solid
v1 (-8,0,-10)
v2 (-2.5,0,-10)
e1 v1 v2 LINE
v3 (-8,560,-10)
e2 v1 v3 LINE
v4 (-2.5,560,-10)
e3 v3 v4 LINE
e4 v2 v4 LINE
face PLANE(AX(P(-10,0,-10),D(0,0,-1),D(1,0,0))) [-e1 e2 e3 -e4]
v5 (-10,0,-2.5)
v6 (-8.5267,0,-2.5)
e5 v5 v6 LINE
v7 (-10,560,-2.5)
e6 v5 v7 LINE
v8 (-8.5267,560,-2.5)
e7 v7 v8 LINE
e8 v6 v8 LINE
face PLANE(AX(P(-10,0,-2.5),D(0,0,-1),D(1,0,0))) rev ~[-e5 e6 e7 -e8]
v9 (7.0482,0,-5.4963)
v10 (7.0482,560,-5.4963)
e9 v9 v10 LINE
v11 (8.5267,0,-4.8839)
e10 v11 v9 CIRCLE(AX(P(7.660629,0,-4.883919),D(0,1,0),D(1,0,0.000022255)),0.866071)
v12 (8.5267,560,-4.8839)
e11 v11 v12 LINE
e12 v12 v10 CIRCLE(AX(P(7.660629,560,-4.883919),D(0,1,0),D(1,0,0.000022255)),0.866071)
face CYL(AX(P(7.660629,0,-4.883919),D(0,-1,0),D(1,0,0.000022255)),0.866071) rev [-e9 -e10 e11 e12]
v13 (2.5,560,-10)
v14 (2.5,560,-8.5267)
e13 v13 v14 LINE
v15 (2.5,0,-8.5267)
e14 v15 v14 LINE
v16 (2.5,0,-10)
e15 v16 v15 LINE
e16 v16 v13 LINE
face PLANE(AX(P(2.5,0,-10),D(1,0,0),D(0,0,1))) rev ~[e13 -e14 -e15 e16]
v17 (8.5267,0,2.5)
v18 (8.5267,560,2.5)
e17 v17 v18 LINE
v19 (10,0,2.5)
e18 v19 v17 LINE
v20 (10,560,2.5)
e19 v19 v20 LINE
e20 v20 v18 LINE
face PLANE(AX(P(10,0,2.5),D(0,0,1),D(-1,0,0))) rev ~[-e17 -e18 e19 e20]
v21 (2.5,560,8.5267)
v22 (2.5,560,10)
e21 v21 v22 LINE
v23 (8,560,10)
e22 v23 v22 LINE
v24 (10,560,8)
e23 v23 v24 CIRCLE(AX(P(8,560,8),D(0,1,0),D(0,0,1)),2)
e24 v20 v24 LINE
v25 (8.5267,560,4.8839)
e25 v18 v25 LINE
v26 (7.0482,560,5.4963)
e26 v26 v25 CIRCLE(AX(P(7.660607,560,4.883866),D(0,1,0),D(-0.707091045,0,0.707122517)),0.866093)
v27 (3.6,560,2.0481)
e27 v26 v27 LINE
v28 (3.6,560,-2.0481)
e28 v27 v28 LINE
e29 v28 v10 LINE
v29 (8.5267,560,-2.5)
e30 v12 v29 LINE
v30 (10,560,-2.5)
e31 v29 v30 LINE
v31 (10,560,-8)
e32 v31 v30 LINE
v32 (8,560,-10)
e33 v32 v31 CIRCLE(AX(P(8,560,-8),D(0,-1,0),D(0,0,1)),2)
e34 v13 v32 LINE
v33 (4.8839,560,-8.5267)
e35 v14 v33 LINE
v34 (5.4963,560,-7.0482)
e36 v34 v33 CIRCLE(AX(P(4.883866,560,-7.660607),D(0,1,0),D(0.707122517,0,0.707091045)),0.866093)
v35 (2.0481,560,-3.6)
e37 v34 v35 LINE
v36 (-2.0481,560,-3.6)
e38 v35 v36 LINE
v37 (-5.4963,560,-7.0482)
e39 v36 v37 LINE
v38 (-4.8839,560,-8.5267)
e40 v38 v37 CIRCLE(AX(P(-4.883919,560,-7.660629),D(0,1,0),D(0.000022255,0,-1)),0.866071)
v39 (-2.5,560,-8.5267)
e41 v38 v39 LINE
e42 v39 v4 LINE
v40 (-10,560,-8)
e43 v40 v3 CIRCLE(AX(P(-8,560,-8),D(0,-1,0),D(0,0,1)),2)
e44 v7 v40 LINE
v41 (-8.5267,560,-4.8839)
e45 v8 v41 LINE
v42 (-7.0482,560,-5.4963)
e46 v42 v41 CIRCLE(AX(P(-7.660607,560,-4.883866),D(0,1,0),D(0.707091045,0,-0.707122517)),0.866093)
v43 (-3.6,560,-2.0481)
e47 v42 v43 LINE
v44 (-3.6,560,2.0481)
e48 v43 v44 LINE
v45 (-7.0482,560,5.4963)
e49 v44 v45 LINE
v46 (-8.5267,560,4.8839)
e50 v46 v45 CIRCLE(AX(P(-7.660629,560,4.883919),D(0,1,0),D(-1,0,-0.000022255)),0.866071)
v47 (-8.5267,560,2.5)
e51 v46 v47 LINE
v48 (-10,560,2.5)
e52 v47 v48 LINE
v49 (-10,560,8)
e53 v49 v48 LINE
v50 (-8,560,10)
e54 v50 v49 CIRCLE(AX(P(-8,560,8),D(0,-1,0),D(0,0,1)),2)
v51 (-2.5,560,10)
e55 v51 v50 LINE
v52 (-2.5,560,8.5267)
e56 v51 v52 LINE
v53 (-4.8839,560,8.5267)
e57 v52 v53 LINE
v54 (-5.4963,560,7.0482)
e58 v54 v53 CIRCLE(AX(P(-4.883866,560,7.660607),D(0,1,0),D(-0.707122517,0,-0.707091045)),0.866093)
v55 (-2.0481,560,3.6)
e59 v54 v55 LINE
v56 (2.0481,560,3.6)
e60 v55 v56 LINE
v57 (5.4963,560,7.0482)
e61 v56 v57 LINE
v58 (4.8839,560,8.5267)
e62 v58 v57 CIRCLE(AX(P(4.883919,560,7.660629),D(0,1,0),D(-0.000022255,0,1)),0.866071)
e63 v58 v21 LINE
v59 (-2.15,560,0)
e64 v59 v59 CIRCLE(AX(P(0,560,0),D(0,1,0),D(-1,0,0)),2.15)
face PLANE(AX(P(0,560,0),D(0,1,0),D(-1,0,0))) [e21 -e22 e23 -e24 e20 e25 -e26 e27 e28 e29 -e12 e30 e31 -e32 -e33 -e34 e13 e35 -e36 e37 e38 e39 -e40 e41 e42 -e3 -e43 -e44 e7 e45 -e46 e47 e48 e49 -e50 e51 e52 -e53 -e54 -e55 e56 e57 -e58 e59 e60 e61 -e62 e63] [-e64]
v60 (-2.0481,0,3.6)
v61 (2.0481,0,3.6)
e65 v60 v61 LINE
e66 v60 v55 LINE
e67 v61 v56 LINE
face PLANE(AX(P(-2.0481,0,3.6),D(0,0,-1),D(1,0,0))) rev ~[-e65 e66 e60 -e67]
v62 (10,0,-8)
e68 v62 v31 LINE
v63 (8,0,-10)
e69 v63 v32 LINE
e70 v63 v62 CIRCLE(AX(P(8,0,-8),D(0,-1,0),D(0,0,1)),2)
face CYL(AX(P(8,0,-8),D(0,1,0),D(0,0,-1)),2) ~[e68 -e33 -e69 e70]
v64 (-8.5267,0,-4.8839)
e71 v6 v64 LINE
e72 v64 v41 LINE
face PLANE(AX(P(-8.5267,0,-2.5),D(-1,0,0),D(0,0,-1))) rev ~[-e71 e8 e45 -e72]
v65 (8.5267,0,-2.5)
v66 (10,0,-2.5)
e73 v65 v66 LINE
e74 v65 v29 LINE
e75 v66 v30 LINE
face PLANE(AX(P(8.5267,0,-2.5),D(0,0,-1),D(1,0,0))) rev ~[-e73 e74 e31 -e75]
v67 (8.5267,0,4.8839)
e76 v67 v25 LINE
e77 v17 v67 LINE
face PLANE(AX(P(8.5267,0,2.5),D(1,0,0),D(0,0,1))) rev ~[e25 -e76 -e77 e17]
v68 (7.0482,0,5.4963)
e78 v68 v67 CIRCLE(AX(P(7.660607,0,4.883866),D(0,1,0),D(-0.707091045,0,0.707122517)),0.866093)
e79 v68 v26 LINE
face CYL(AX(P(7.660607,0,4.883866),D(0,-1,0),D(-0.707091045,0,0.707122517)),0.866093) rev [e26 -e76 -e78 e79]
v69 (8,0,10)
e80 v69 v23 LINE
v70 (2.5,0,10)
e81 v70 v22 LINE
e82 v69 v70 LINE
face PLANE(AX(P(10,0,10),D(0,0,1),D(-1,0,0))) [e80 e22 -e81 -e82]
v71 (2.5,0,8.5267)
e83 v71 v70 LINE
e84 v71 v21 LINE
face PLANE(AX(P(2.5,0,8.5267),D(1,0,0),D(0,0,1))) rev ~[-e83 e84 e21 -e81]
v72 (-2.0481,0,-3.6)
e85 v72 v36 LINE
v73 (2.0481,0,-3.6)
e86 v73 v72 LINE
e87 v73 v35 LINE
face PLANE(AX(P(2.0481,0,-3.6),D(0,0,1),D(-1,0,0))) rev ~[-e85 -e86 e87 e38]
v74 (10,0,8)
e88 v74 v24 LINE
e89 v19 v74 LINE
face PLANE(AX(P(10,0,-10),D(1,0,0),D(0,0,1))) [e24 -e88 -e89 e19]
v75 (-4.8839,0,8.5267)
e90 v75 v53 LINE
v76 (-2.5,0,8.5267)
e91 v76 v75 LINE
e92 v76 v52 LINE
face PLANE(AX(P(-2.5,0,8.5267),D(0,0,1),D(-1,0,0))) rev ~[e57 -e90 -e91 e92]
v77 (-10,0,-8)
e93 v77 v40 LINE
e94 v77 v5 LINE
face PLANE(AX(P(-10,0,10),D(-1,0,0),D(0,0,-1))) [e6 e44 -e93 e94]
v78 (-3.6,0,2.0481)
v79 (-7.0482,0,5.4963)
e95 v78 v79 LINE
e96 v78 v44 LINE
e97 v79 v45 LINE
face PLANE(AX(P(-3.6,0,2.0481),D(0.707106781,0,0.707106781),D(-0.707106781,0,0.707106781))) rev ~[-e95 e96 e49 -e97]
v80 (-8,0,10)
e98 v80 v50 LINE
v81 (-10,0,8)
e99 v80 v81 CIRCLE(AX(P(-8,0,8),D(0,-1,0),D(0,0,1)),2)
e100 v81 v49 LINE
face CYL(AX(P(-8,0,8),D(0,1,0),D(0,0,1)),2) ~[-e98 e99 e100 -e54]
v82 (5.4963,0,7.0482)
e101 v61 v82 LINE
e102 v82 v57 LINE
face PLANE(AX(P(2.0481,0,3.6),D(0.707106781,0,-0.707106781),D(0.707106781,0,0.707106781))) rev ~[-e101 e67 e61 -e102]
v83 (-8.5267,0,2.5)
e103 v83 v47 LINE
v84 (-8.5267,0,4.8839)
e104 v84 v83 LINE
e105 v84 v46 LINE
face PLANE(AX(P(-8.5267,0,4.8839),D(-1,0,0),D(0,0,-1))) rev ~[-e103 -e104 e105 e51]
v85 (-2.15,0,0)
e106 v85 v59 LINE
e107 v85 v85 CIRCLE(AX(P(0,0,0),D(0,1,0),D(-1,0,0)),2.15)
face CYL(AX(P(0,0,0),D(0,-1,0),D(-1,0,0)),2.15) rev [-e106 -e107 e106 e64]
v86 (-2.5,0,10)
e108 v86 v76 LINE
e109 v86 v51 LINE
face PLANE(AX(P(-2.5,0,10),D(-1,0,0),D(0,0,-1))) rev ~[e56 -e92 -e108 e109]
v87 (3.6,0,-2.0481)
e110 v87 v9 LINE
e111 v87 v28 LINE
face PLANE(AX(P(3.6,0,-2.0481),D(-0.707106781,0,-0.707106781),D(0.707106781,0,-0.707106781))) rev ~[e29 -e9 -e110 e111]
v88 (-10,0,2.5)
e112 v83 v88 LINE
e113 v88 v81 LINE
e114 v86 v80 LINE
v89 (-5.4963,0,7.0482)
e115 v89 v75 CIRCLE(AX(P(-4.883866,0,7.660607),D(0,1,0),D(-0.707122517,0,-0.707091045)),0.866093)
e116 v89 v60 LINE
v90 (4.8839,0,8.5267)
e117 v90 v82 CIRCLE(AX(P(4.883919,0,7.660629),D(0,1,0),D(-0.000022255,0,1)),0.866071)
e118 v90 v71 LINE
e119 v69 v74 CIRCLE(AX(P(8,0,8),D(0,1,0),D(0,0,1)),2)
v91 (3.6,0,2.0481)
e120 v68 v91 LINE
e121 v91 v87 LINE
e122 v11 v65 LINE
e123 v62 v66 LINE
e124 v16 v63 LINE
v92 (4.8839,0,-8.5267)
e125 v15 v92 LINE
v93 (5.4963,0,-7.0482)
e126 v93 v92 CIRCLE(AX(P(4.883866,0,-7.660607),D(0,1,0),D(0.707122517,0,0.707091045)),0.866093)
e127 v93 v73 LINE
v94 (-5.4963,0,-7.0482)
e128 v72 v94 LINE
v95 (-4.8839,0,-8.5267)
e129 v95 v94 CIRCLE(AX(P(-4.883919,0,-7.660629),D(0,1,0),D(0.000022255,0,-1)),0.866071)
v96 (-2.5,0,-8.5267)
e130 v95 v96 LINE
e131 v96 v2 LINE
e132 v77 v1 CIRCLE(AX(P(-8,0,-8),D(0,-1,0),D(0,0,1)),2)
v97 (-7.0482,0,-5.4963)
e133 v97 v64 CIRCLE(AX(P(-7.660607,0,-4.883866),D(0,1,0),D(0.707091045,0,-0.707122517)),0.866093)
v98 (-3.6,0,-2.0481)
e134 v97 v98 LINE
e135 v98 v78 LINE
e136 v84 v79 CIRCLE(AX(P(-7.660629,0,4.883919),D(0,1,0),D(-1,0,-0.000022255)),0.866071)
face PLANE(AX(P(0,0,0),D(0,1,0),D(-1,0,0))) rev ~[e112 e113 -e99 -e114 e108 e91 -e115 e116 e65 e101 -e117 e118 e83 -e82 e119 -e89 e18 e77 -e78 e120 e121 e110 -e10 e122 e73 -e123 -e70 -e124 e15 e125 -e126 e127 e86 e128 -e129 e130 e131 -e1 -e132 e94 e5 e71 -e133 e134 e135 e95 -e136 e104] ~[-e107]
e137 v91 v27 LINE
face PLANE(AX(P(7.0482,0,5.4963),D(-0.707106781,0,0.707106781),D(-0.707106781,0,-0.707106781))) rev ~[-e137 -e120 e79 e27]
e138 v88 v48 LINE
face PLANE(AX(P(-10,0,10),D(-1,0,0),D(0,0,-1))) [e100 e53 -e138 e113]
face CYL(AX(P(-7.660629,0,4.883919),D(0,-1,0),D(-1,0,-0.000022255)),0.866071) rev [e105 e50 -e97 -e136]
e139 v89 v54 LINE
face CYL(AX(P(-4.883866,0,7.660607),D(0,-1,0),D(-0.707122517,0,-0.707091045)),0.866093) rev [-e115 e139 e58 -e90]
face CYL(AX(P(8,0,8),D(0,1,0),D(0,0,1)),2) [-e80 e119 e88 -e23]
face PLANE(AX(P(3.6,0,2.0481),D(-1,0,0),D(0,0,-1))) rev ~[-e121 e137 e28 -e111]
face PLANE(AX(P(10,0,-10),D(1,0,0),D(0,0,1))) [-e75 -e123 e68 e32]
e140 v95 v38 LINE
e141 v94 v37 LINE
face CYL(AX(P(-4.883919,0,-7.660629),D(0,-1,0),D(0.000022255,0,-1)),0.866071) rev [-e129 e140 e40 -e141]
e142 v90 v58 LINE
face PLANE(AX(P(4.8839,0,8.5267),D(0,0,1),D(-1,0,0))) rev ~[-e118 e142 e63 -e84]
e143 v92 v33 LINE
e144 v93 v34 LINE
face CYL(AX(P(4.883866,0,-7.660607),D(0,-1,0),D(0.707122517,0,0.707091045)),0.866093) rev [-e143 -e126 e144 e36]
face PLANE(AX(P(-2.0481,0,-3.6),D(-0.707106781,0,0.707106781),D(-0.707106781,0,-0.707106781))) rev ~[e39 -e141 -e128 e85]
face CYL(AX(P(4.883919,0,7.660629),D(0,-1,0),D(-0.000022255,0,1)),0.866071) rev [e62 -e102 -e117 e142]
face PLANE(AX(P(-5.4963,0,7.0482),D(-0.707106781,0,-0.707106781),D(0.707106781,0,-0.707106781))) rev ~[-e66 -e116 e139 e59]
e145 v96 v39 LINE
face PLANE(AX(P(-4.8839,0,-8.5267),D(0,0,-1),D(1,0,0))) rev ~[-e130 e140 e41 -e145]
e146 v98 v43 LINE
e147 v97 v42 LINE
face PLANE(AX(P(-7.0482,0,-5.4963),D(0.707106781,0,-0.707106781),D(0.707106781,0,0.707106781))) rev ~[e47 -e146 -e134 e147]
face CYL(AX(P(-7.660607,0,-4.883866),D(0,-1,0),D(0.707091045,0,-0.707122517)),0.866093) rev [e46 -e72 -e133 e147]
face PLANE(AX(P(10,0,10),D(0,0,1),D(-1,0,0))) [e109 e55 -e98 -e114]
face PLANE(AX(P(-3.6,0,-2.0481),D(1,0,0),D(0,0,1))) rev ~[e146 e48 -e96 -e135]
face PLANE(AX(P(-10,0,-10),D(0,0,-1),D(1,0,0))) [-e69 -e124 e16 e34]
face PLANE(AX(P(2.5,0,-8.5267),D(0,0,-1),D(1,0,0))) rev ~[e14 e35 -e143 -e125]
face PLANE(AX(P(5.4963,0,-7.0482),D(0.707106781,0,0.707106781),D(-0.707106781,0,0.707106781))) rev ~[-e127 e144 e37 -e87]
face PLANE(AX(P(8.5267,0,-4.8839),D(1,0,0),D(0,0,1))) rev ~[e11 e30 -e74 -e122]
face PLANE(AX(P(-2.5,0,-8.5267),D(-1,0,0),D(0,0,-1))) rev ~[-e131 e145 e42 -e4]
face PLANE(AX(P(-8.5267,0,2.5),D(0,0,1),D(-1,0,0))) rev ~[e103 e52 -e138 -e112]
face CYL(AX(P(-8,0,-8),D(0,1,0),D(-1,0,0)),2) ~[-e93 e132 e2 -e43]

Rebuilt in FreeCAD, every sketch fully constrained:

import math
import FreeCAD as App
import Part
import Sketcher

V = App.Vector


def edges_at(feature, points):
    """Names of the edges that pass closest to the given points."""
    edges = feature.Shape.Edges
    near = lambda p: min(range(len(edges)), key=lambda i: edges[i].distToShape(Part.Vertex(*p))[0])
    return sorted({f"Edge{near(p) + 1}" for p in points})


def add_polygon(sketch, points):
    """Adds a closed chain of lines whose ends are joined by coincident constraints."""
    first, n = sketch.GeometryCount, len(points)
    for a, b in zip(points, points[1:] + points[:1]):
        sketch.addGeometry(Part.LineSegment(App.Vector(*a, 0), App.Vector(*b, 0)), False)
    for i in range(n):
        sketch.addConstraint(Sketcher.Constraint("Coincident", first + i, 2, first + (i + 1) % n, 1))

doc = App.newDocument("Part")
body = doc.addObject("PartDesign::Body", "Body")

# Sketch on XZ plane
sketch1 = doc.addObject("Sketcher::SketchObject", "Sketch")
body.addObject(sketch1)
sketch1.AttachmentSupport = (doc.XZ_Plane, [""])
sketch1.MapMode = "FlatFace"
add_polygon(sketch1, [(-10, 10), (10, 10), (10, -10), (-10, -10)])  # lines 0-3
sketch1.addGeometry(Part.Circle(V(0, 0, 0), V(0, 0, 1), 2.1), False)  # 4
sketch1.addConstraint([
    Sketcher.Constraint("Horizontal", 0),
    Sketcher.Constraint("Vertical", 1),
    Sketcher.Constraint("Horizontal", 2),
    Sketcher.Constraint("Vertical", 3),
    Sketcher.Constraint("Coincident", 4, 3, -1, 1),
    Sketcher.Constraint("Symmetric", 0, 2, 2, 2, -1, 1),
    Sketcher.Constraint("Equal", 2, 1),
    Sketcher.Constraint("Diameter", 4, 4.3),
    Sketcher.Constraint("DistanceX", 0, 1, 0, 2, 20.0),
])
pad1 = doc.addObject("PartDesign::Pad", "Pad")
body.addObject(pad1)
pad1.Profile = sketch1
pad1.Length = 560
pad1.Reversed = True

# Sketch on XZ plane
sketch2 = doc.addObject("Sketcher::SketchObject", "Sketch001")
body.addObject(sketch2)
sketch2.AttachmentSupport = (doc.XZ_Plane, [""])
sketch2.MapMode = "FlatFace"
sketch2.addGeometry([
    Part.LineSegment(V(-10, -2.5, 0), V(-10, 2.5, 0)),  # 0
    Part.LineSegment(V(-10, 2.5, 0), V(-8.5, 2.5, 0)),  # 1
    Part.LineSegment(V(-8.5, 2.5, 0), V(-8.5, 4.9, 0)),  # 2
    Part.ArcOfCircle(Part.Circle(V(-7.7, 4.9, 0), V(0, 0, 1), 0.9), math.radians(45), math.radians(180)),  # 3
    Part.LineSegment(V(-7, 5.5, 0), V(-3.6, 2, 0)),  # 4
    Part.LineSegment(V(-3.6, 2, 0), V(-3.6, -2, 0)),  # 5
    Part.LineSegment(V(-3.6, -2, 0), V(-7, -5.5, 0)),  # 6
    Part.ArcOfCircle(Part.Circle(V(-7.7, -4.9, 0), V(0, 0, 1), 0.9), math.radians(180), math.radians(315)),  # 7
    Part.LineSegment(V(-8.5, -4.9, 0), V(-8.5, -2.5, 0)),  # 8
    Part.LineSegment(V(-8.5, -2.5, 0), V(-10, -2.5, 0)),  # 9
], False)
sketch2.addConstraint([
    Sketcher.Constraint("Coincident", 0, 2, 1, 1),
    Sketcher.Constraint("Coincident", 1, 2, 2, 1),
    Sketcher.Constraint("Tangent", 2, 2, 3, 2),
    Sketcher.Constraint("Tangent", 3, 1, 4, 1),
    Sketcher.Constraint("Coincident", 4, 2, 5, 1),
    Sketcher.Constraint("Coincident", 5, 2, 6, 1),
    Sketcher.Constraint("Tangent", 6, 2, 7, 2),
    Sketcher.Constraint("Tangent", 7, 1, 8, 1),
    Sketcher.Constraint("Coincident", 8, 2, 9, 1),
    Sketcher.Constraint("Coincident", 9, 2, 0, 1),
    Sketcher.Constraint("Vertical", 0),
    Sketcher.Constraint("Horizontal", 1),
    Sketcher.Constraint("Vertical", 2),
    Sketcher.Constraint("Vertical", 5),
    Sketcher.Constraint("Vertical", 8),
    Sketcher.Constraint("Horizontal", 9),
    Sketcher.Constraint("Equal", 3, 7),
    Sketcher.Constraint("Symmetric", 3, 3, 7, 3, -1),
    Sketcher.Constraint("Perpendicular", 4, 6),
    Sketcher.Constraint("Vertical", 3, 1, 6, 2),
    Sketcher.Constraint("Equal", 2, 8),
    Sketcher.Constraint("DistanceY", 0, 1, 0, 2, 5.0),
    Sketcher.Constraint("DistanceX", 0, 2, 4, 2, 6.4),
    Sketcher.Constraint("DistanceX", 0, 2, -1, 1, 10.0),
    Sketcher.Constraint("Radius", 3, 0.866),
    Sketcher.Constraint("DistanceY", 2, 1, 2, 2, 2.384),
    Sketcher.Constraint("DistanceX", 1, 1, 1, 2, 1.4733),
])
pocket1 = doc.addObject("PartDesign::Pocket", "Pocket")
body.addObject(pocket1)
pocket1.Profile = sketch2
pocket1.Length = 560
doc.recompute()

polarpattern = doc.addObject("PartDesign::PolarPattern", "PolarPattern")
body.addObject(polarpattern)
polarpattern.Originals = [pocket1]
polarpattern.Axis = (doc.Y_Axis, [""])
polarpattern.Angle = 360
polarpattern.Occurrences = 4
body.Tip = polarpattern
doc.recompute()

fillet = doc.addObject("PartDesign::Fillet", "Fillet")
body.addObject(fillet)
fillet.Base = (polarpattern, edges_at(polarpattern, [
    (-10, 280, -10),
    (10, 280, -10),
    (10, 280, 10),
    (-10, 280, 10),
]))
fillet.Radius = 2

doc.recompute()
